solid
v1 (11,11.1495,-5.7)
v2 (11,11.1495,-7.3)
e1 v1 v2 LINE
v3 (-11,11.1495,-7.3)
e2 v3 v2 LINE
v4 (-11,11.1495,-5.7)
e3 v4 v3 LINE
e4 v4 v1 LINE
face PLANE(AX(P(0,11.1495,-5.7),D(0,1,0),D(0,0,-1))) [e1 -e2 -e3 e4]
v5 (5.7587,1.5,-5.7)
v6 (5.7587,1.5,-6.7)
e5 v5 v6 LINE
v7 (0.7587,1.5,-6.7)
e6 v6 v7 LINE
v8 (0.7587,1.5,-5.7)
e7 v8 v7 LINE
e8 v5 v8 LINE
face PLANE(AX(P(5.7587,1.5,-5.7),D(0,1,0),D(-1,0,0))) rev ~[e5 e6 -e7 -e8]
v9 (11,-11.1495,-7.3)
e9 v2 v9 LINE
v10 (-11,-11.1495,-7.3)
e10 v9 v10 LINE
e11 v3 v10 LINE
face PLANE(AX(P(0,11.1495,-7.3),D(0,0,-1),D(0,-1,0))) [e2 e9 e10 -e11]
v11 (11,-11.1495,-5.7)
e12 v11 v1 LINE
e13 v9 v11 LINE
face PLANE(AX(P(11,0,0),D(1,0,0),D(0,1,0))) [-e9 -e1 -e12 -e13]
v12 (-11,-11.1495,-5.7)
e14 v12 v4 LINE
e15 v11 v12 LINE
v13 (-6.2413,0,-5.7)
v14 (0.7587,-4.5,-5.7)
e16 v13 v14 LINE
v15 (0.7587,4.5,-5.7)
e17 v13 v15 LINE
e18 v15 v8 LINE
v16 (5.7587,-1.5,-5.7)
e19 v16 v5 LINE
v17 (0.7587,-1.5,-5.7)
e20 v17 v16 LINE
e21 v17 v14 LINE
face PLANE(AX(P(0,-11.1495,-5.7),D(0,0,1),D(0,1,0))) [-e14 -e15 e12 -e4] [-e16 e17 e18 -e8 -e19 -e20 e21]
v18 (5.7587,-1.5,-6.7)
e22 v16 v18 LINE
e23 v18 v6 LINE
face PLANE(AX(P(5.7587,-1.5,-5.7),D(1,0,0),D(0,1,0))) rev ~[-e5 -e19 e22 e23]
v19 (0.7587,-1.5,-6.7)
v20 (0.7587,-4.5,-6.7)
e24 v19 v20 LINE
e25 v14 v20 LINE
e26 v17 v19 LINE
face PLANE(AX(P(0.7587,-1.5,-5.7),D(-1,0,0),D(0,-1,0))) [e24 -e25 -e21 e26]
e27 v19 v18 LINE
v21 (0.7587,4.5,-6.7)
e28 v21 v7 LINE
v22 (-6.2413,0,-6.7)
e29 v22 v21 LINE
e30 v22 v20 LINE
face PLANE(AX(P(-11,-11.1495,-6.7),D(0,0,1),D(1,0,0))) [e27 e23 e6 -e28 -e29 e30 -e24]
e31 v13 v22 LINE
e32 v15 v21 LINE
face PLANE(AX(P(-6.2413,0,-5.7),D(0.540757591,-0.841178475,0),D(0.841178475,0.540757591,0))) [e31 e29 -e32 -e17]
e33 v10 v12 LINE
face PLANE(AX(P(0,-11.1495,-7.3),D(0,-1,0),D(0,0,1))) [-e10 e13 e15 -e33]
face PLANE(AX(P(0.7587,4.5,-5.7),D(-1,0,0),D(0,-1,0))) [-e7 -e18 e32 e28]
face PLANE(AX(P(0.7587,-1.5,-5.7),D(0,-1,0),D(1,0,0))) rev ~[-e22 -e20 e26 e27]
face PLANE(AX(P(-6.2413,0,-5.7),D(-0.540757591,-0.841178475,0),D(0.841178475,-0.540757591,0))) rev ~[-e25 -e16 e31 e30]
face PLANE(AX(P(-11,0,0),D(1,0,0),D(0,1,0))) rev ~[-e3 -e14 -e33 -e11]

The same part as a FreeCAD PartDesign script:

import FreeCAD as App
import Part
import Sketcher
Q = App.Units.Quantity

doc = App.newDocument("Part")
params = doc.addObject("Spreadsheet::Sheet", "Params")
for row, (alias, value) in enumerate([
    ("sketch1_height", "1.6 mm"),
    ("pad1_length", "22 mm"),
    ("sketch2_width", "5 mm"),
    ("sketch2_height", "3 mm"),
    ("pocket1_length", "1 mm"),
], start=1):
    params.set(f"A{row}", alias)
    params.set(f"B{row}", "=" + value)
    params.setAlias(f"B{row}", alias)

body = doc.addObject("PartDesign::Body", "Body")

sketch1 = body.newObject("Sketcher::SketchObject", "Sketch")
sketch1.AttachmentSupport = (doc.getObject("YZ_Plane"), [""])
sketch1.MapMode = "FlatFace"
sketch1.addGeometry(Part.LineSegment(App.Vector(-11.1, -7.3, 0), App.Vector(11.1, -7.3, 0)), False)
sketch1.addGeometry(Part.LineSegment(App.Vector(11.1, -7.3, 0), App.Vector(11.1, -5.7, 0)), False)
sketch1.addGeometry(Part.LineSegment(App.Vector(11.1, -5.7, 0), App.Vector(-11.1, -5.7, 0)), False)
sketch1.addGeometry(Part.LineSegment(App.Vector(-11.1, -5.7, 0), App.Vector(-11.1, -7.3, 0)), False)
sketch1.addConstraint(Sketcher.Constraint("Coincident", 0, 2, 1, 1))
sketch1.addConstraint(Sketcher.Constraint("Coincident", 1, 2, 2, 1))
sketch1.addConstraint(Sketcher.Constraint("Coincident", 2, 2, 3, 1))
sketch1.addConstraint(Sketcher.Constraint("Coincident", 3, 2, 0, 1))
sketch1.addConstraint(Sketcher.Constraint("Horizontal", 0))
sketch1.addConstraint(Sketcher.Constraint("Vertical", 1))
sketch1.addConstraint(Sketcher.Constraint("Horizontal", 2))
sketch1.addConstraint(Sketcher.Constraint("Vertical", 3))
sketch1.addConstraint(Sketcher.Constraint("DistanceY", 1, 1, 1, 2, Q("1.6 mm")))
sketch1.addConstraint(Sketcher.Constraint("DistanceX", 0, 1, 0, 2, Q("22.299 mm")))
sketch1.addConstraint(Sketcher.Constraint("DistanceY", 0, 2, -1, 1, Q("7.3 mm")))
sketch1.addConstraint(Sketcher.Constraint("DistanceX", -1, 1, 0, 2, Q("11.1495 mm")))
sketch1.setExpression("Constraints[8]", "Params.sketch1_height")
pad1 = body.newObject("PartDesign::Pad", "Pad")
pad1.Profile = sketch1
pad1.setExpression("Length", "Params.pad1_length")
pad1.Midplane = True

sketch2 = body.newObject("Sketcher::SketchObject", "Sketch001")
sketch2.AttachmentSupport = (doc.getObject("XY_Plane"), [""])
sketch2.MapMode = "FlatFace"
sketch2.AttachmentOffset = App.Placement(App.Vector(0, 0, -5.7), App.Rotation())
sketch2.addGeometry(Part.LineSegment(App.Vector(5.8, 1.5, 0), App.Vector(0.8, 1.5, 0)), False)
sketch2.addGeometry(Part.LineSegment(App.Vector(0.8, 1.5, 0), App.Vector(0.8, 4.5, 0)), False)
sketch2.addGeometry(Part.LineSegment(App.Vector(0.8, 4.5, 0), App.Vector(-6.2, 0, 0)), False)
sketch2.addGeometry(Part.LineSegment(App.Vector(-6.2, 0, 0), App.Vector(0.8, -4.5, 0)), False)
sketch2.addGeometry(Part.LineSegment(App.Vector(0.8, -4.5, 0), App.Vector(0.8, -1.5, 0)), False)
sketch2.addGeometry(Part.LineSegment(App.Vector(0.8, -1.5, 0), App.Vector(5.8, -1.5, 0)), False)
sketch2.addGeometry(Part.LineSegment(App.Vector(5.8, -1.5, 0), App.Vector(5.8, 1.5, 0)), False)
sketch2.addConstraint(Sketcher.Constraint("Coincident", 0, 2, 1, 1))
sketch2.addConstraint(Sketcher.Constraint("Coincident", 1, 2, 2, 1))
sketch2.addConstraint(Sketcher.Constraint("Coincident", 2, 2, 3, 1))
sketch2.addConstraint(Sketcher.Constraint("Coincident", 3, 2, 4, 1))
sketch2.addConstraint(Sketcher.Constraint("Coincident", 4, 2, 5, 1))
sketch2.addConstraint(Sketcher.Constraint("Coincident", 5, 2, 6, 1))
sketch2.addConstraint(Sketcher.Constraint("Coincident", 6, 2, 0, 1))
sketch2.addConstraint(Sketcher.Constraint("Horizontal", 0))
sketch2.addConstraint(Sketcher.Constraint("Vertical", 1))
sketch2.addConstraint(Sketcher.Constraint("Vertical", 4))
sketch2.addConstraint(Sketcher.Constraint("Horizontal", 5))
sketch2.addConstraint(Sketcher.Constraint("Vertical", 6))
sketch2.addConstraint(Sketcher.Constraint("Symmetric", 1, 2, 3, 2, -1))
sketch2.addConstraint(Sketcher.Constraint("PointOnObject", 2, 2, -1))
sketch2.addConstraint(Sketcher.Constraint("Equal", 1, 4))
sketch2.addConstraint(Sketcher.Constraint("Equal", 4, 6))
sketch2.addConstraint(Sketcher.Constraint("DistanceX", 0, 2, 0, 1, Q("5 mm")))
sketch2.addConstraint(Sketcher.Constraint("DistanceY", 1, 1, 1, 2, Q("3 mm")))
sketch2.addConstraint(Sketcher.Constraint("DistanceX", 2, 2, 0, 2, Q("7 mm")))
sketch2.addConstraint(Sketcher.Constraint("DistanceX", -1, 1, 0, 2, Q("0.7587 mm")))
sketch2.setExpression("Constraints[16]", "Params.sketch2_width")
sketch2.setExpression("Constraints[17]", "Params.sketch2_height")
pocket1 = body.newObject("PartDesign::Pocket", "Pocket")
pocket1.Profile = sketch2
pocket1.setExpression("Length", "Params.pocket1_length")

doc.recompute()
